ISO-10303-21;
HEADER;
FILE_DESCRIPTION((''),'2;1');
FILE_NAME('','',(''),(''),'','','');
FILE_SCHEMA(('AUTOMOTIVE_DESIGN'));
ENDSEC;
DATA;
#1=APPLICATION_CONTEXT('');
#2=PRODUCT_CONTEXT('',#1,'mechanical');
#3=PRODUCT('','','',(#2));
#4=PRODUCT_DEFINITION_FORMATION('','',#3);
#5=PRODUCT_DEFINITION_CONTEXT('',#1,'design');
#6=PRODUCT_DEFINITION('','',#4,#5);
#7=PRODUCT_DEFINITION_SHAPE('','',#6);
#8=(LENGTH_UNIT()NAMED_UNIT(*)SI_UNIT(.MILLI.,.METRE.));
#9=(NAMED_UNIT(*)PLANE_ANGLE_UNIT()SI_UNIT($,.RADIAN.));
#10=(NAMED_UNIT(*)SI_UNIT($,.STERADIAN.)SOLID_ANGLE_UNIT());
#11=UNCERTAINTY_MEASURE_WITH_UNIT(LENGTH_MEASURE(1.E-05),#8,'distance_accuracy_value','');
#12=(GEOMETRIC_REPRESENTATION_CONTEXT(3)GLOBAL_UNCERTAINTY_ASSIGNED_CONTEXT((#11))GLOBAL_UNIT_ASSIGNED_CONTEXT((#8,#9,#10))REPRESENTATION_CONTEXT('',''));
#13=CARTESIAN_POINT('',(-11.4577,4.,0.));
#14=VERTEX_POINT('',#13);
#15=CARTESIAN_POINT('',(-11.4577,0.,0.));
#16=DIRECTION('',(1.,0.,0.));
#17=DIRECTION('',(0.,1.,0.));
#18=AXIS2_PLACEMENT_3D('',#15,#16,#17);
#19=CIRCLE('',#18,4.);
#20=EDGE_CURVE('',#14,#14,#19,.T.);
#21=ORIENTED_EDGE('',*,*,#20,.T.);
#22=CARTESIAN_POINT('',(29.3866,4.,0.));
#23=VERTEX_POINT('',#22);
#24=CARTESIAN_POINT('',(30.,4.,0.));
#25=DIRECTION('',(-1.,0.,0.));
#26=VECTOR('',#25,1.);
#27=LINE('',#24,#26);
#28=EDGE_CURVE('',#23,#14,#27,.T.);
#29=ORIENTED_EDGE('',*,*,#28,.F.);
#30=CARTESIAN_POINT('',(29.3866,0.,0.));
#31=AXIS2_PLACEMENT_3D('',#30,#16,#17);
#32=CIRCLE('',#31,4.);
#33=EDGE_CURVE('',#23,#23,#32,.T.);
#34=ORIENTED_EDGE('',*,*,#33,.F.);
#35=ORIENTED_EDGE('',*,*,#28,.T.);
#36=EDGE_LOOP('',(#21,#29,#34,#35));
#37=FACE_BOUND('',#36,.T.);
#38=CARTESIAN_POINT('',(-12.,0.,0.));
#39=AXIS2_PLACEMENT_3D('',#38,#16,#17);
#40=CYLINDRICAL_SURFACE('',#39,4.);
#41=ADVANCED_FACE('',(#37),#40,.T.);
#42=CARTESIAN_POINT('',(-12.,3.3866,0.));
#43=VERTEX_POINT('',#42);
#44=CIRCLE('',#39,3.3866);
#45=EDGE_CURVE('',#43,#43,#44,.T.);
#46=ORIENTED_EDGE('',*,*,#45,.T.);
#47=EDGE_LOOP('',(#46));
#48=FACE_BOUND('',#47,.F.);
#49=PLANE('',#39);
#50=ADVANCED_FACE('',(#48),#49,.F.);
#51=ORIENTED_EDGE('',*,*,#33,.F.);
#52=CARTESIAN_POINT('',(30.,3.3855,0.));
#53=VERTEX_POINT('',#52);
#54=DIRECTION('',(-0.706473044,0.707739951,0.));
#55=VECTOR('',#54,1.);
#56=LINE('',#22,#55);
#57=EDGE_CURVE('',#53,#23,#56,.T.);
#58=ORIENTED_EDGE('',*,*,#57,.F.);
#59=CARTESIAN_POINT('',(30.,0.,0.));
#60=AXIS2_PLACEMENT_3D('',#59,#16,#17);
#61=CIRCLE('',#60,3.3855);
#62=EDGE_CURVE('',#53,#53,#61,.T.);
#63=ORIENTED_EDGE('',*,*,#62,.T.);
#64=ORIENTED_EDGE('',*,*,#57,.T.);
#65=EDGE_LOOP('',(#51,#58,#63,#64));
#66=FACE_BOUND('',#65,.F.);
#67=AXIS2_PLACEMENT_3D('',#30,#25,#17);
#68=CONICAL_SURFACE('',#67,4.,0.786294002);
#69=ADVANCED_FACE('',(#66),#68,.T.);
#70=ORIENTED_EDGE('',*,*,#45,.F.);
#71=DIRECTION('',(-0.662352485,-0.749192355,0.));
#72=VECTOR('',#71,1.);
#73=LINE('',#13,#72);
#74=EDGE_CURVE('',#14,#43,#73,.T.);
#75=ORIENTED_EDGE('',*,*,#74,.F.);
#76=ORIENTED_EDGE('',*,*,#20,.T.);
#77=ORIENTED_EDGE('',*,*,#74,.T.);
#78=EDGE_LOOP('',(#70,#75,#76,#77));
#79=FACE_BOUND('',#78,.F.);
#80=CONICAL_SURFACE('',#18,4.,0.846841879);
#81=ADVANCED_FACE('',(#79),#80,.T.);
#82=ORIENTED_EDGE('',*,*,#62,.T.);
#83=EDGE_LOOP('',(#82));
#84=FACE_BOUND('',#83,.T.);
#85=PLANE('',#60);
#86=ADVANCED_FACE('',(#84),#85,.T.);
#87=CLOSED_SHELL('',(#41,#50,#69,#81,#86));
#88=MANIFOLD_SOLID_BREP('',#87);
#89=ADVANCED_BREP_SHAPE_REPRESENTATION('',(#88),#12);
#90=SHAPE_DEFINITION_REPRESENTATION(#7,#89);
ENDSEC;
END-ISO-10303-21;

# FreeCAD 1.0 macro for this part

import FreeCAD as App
import Part
import Sketcher

V = App.Vector
Q = App.Units.Quantity


def edges_at(feature, points):
    """Names of the edges that pass closest to the given points."""
    edges = feature.Shape.Edges
    near = lambda p: min(range(len(edges)), key=lambda i: edges[i].distToShape(Part.Vertex(*p))[0])
    return sorted({f"Edge{near(p) + 1}" for p in points})


def add_polygon(sketch, points):
    """Adds a closed chain of lines whose ends are joined by coincident constraints."""
    first, n = sketch.GeometryCount, len(points)
    for a, b in zip(points, points[1:] + points[:1]):
        sketch.addGeometry(Part.LineSegment(App.Vector(*a, 0), App.Vector(*b, 0)), False)
    for i in range(n):
        sketch.addConstraint(Sketcher.Constraint("Coincident", first + i, 2, first + (i + 1) % n, 1))

doc = App.newDocument("Part")
body = doc.addObject("PartDesign::Body", "Body")

sketch1 = doc.addObject("Sketcher::SketchObject", "Sketch")
body.addObject(sketch1)
sketch1.AttachmentSupport = (doc.XY_Plane, [""])
sketch1.MapMode = "FlatFace"
add_polygon(sketch1, [(30, 0), (30, 4), (-12, 4), (-12, 0)])
sketch1.addConstraint([
    Sketcher.Constraint("Vertical", 0),
    Sketcher.Constraint("Horizontal", 1),
    Sketcher.Constraint("Vertical", 2),
    Sketcher.Constraint("Horizontal", 3),
    Sketcher.Constraint("PointOnObject", 2, 2, -1),
    Sketcher.Constraint("DistanceX", -1, 1, 0, 2, Q("30 mm")),
    Sketcher.Constraint("DistanceX", 1, 2, -1, 1, Q("12 mm")),
    Sketcher.Constraint("DistanceY", 0, 1, 0, 2, Q("4 mm")),
])
revolution = doc.addObject("PartDesign::Revolution", "Revolution")
body.addObject(revolution)
revolution.Profile = sketch1
revolution.ReferenceAxis = (sketch1, ["H_Axis"])
revolution.Angle = 360
doc.recompute()

chamfer = doc.addObject("PartDesign::Chamfer", "Chamfer")
body.addObject(chamfer)
chamfer.Base = (revolution, edges_at(revolution, [(30, -4, 0)]))
chamfer.ChamferType = "Two distances"
chamfer.Size = 0.6145
chamfer.Size2 = 0.6134
doc.recompute()

chamfer2 = doc.addObject("PartDesign::Chamfer", "Chamfer001")
body.addObject(chamfer2)
chamfer2.Base = (chamfer, edges_at(chamfer, [(-12, -4, 0)]))
chamfer2.ChamferType = "Two distances"
chamfer2.Size = 0.5423
chamfer2.Size2 = 0.6134

doc.recompute()
